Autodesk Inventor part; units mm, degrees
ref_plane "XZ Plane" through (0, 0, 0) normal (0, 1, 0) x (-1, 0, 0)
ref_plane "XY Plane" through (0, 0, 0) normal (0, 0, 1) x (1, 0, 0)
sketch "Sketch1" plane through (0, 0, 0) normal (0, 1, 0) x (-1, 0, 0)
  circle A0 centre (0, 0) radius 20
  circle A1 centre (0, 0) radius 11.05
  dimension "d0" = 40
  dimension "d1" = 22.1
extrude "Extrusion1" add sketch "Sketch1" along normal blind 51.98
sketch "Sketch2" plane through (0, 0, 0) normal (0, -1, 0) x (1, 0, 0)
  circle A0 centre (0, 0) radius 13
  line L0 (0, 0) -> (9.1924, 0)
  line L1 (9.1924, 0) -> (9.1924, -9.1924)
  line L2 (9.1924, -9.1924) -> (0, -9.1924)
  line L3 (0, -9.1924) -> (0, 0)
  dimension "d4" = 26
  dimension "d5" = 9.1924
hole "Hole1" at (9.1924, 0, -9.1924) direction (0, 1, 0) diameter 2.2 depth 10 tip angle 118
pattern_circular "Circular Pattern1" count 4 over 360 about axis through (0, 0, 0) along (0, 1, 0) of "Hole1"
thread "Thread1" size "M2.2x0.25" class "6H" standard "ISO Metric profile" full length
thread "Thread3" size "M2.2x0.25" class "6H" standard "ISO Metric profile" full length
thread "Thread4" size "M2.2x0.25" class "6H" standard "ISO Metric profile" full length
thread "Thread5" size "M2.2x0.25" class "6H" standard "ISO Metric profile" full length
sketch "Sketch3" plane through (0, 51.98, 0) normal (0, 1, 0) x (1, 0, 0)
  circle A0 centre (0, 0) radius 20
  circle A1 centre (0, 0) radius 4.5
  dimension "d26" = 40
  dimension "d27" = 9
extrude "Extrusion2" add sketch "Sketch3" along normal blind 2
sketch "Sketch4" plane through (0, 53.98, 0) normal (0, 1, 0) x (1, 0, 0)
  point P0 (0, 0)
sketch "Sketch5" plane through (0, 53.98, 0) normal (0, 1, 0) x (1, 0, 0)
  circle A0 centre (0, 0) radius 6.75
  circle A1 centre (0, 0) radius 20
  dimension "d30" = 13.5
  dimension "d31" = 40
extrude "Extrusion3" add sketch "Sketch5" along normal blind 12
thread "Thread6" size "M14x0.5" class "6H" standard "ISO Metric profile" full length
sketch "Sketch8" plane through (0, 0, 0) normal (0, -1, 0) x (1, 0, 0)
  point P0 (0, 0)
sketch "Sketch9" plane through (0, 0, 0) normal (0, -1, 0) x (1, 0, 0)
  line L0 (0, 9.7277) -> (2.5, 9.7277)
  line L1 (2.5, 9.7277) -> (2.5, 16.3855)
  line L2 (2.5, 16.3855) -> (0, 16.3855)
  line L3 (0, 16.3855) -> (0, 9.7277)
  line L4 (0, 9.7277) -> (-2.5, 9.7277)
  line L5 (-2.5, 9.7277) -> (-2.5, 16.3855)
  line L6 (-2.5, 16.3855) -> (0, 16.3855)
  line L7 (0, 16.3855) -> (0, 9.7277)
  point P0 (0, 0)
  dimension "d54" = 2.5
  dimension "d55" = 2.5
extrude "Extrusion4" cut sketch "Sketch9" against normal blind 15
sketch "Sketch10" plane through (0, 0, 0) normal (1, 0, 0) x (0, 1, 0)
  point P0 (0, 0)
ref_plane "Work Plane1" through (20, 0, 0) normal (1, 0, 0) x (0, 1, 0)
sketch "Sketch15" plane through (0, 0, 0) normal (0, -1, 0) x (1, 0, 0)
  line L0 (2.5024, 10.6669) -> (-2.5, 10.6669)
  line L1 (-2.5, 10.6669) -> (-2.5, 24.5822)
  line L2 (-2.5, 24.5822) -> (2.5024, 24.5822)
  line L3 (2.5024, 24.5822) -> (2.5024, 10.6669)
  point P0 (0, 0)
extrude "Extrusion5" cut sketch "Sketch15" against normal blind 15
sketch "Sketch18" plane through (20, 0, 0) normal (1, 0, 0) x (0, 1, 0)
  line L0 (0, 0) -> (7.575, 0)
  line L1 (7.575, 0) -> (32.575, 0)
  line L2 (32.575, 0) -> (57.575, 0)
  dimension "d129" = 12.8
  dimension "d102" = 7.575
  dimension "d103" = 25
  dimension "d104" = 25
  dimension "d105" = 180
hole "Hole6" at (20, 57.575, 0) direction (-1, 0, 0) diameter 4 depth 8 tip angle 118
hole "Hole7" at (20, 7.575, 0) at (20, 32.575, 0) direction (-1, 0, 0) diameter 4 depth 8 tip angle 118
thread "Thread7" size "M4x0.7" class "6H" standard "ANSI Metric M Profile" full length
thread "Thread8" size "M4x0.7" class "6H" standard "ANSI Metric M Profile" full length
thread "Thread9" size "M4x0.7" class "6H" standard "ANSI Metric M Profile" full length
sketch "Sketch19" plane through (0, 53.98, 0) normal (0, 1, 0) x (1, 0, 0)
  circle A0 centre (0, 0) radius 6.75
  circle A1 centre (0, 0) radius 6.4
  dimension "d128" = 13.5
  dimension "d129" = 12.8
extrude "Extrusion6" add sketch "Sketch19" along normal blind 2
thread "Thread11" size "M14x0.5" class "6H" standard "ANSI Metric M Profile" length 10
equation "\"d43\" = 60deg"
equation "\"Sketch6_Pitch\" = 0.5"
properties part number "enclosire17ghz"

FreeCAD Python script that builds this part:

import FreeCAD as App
import Part
import Sketcher

V = App.Vector


def add_polygon(sketch, points):
    """Adds a closed chain of lines whose ends are joined by coincident constraints."""
    first, n = sketch.GeometryCount, len(points)
    for a, b in zip(points, points[1:] + points[:1]):
        sketch.addGeometry(Part.LineSegment(App.Vector(*a, 0), App.Vector(*b, 0)), False)
    for i in range(n):
        sketch.addConstraint(Sketcher.Constraint("Coincident", first + i, 2, first + (i + 1) % n, 1))

doc = App.newDocument("Part")
body = doc.addObject("PartDesign::Body", "Body")

sketch1 = body.newObject("Sketcher::SketchObject", "Sketch")
sketch1.AttachmentSupport = (doc.getObject("XZ_Plane"), [""])
sketch1.MapMode = "FlatFace"
sketch1.addGeometry([
    Part.Circle(V(0, 0, 0), V(0, 0, 1), 20),
    Part.Circle(V(0, 0, 0), V(0, 0, 1), 11),
], False)
sketch1.addConstraint([
    Sketcher.Constraint("Coincident", 0, 3, -1, 1),
    Sketcher.Constraint("Coincident", 1, 3, -1, 1),
    Sketcher.Constraint("Diameter", 0, 40.0),
    Sketcher.Constraint("Diameter", 1, 22.1),
])
pad1 = body.newObject("PartDesign::Pad", "Pad")
pad1.Profile = sketch1
pad1.Length = 51.98
pad1.Reversed = True

sketch2 = body.newObject("Sketcher::SketchObject", "Sketch001")
sketch2.AttachmentSupport = (doc.getObject("XZ_Plane"), [""])
sketch2.MapMode = "FlatFace"
sketch2.addGeometry(Part.Circle(V(9.2, -9.2, 0), V(0, 0, 1), 1.1), False)
sketch2.addConstraint([
    Sketcher.Constraint("Diameter", 0, 2.2),
    Sketcher.Constraint("DistanceX", -1, 1, 0, 3, 9.1924),
    Sketcher.Constraint("DistanceY", 0, 3, -1, 1, 9.1924),
])
doc.recompute()
hole = body.newObject("PartDesign::Hole", "Hole")
hole.Profile = sketch2
hole.ThreadType = "None"
hole.Diameter = 2.2
hole.DepthType = "Dimension"
hole.Depth = 10
hole.DrillPoint = "Angled"
hole.DrillPointAngle = 118
doc.recompute()

polarpattern = body.newObject("PartDesign::PolarPattern", "PolarPattern")
polarpattern.Originals = [hole]
polarpattern.Axis = (doc.getObject("Y_Axis"), [""])
polarpattern.Angle = 360
polarpattern.Occurrences = 4
body.Tip = polarpattern

sketch3 = body.newObject("Sketcher::SketchObject", "Sketch002")
sketch3.AttachmentSupport = (doc.getObject("XZ_Plane"), [""])
sketch3.MapMode = "FlatFace"
sketch3.AttachmentOffset = App.Placement(V(0, 0, -51.98), App.Rotation())
sketch3.addGeometry([
    Part.Circle(V(0, 0, 0), V(0, 0, 1), 20),
    Part.Circle(V(0, 0, 0), V(0, 0, 1), 4.5),
], False)
sketch3.addConstraint([
    Sketcher.Constraint("Coincident", 0, 3, -1, 1),
    Sketcher.Constraint("Coincident", 1, 3, -1, 1),
    Sketcher.Constraint("Diameter", 0, 40.0),
    Sketcher.Constraint("Diameter", 1, 9.0),
])
pad2 = body.newObject("PartDesign::Pad", "Pad001")
pad2.Profile = sketch3
pad2.Length = 2
pad2.Reversed = True

sketch4 = body.newObject("Sketcher::SketchObject", "Sketch003")
sketch4.AttachmentSupport = (doc.getObject("XZ_Plane"), [""])
sketch4.MapMode = "FlatFace"
sketch4.AttachmentOffset = App.Placement(V(0, 0, -53.98), App.Rotation())
sketch4.addGeometry([
    Part.Circle(V(0, 0, 0), V(0, 0, 1), 20),
    Part.Circle(V(0, 0, 0), V(0, 0, 1), 7),
], False)
sketch4.addConstraint([
    Sketcher.Constraint("Coincident", 0, 3, -1, 1),
    Sketcher.Constraint("Coincident", 1, 3, -1, 1),
    Sketcher.Constraint("Diameter", 0, 40.0),
    Sketcher.Constraint("Diameter", 1, 13.5),
])
pad3 = body.newObject("PartDesign::Pad", "Pad002")
pad3.Profile = sketch4
pad3.Length = 12
pad3.Reversed = True

sketch5 = body.newObject("Sketcher::SketchObject", "Sketch004")
sketch5.AttachmentSupport = (doc.getObject("XZ_Plane"), [""])
sketch5.MapMode = "FlatFace"
add_polygon(sketch5, [(2, 16), (-2, 16), (-2, 10), (2, 10)])
sketch5.addConstraint([
    Sketcher.Constraint("Horizontal", 0),
    Sketcher.Constraint("Vertical", 1),
    Sketcher.Constraint("Horizontal", 2),
    Sketcher.Constraint("Vertical", 3),
    Sketcher.Constraint("DistanceX", 0, 2, -1, 1, 2.5),
    Sketcher.Constraint("DistanceX", -1, 1, 2, 2, 2.5),
    Sketcher.Constraint("DistanceY", 1, 2, 1, 1, 6.6578),
    Sketcher.Constraint("DistanceY", -1, 1, 0, 2, 16.3855),
])
pocket1 = body.newObject("PartDesign::Pocket", "Pocket")
pocket1.Profile = sketch5
pocket1.Length = 15

sketch6 = body.newObject("Sketcher::SketchObject", "Sketch005")
sketch6.AttachmentSupport = (doc.getObject("XZ_Plane"), [""])
sketch6.MapMode = "FlatFace"
add_polygon(sketch6, [(-2, 11), (3, 11), (3, 25), (-2, 25)])
sketch6.addConstraint([
    Sketcher.Constraint("Horizontal", 0),
    Sketcher.Constraint("Vertical", 1),
    Sketcher.Constraint("Horizontal", 2),
    Sketcher.Constraint("Vertical", 3),
    Sketcher.Constraint("DistanceX", 2, 2, -1, 1, 2.5),
    Sketcher.Constraint("DistanceX", 0, 1, 0, 2, 5.0024),
    Sketcher.Constraint("DistanceY", 1, 1, 1, 2, 13.9153),
    Sketcher.Constraint("DistanceY", -1, 1, 0, 2, 10.667),
])
pocket2 = body.newObject("PartDesign::Pocket", "Pocket001")
pocket2.Profile = sketch6
pocket2.Length = 15

sketch7 = body.newObject("Sketcher::SketchObject", "Sketch006")
sketch7.AttachmentSupport = (doc.getObject("YZ_Plane"), [""])
sketch7.MapMode = "FlatFace"
sketch7.AttachmentOffset = App.Placement(V(0, 0, 20), App.Rotation())
sketch7.addGeometry(Part.Circle(V(57.6, 0, 0), V(0, 0, 1), 2), False)
sketch7.addConstraint([
    Sketcher.Constraint("PointOnObject", 0, 3, -1),
    Sketcher.Constraint("Diameter", 0, 4.0),
    Sketcher.Constraint("DistanceX", -1, 1, 0, 3, 57.575),
])
doc.recompute()
hole2 = body.newObject("PartDesign::Hole", "Hole001")
hole2.Profile = sketch7
hole2.ThreadType = "None"
hole2.Diameter = 4
hole2.DepthType = "Dimension"
hole2.Depth = 8
hole2.DrillPoint = "Angled"
hole2.DrillPointAngle = 118

sketch8 = body.newObject("Sketcher::SketchObject", "Sketch007")
sketch8.AttachmentSupport = (doc.getObject("YZ_Plane"), [""])
sketch8.MapMode = "FlatFace"
sketch8.AttachmentOffset = App.Placement(V(0, 0, 20), App.Rotation())
sketch8.addGeometry([
    Part.Circle(V(7.6, 0, 0), V(0, 0, 1), 2),
    Part.Circle(V(32.6, 0, 0), V(0, 0, 1), 2),
], False)
sketch8.addConstraint([
    Sketcher.Constraint("Equal", 0, 1),
    Sketcher.Constraint("PointOnObject", 0, 3, -1),
    Sketcher.Constraint("PointOnObject", 1, 3, -1),
    Sketcher.Constraint("Diameter", 0, 4.0),
    Sketcher.Constraint("DistanceX", 0, 3, 1, 3, 25.0),
    Sketcher.Constraint("DistanceX", -1, 1, 0, 3, 7.575),
])
doc.recompute()
hole3 = body.newObject("PartDesign::Hole", "Hole002")
hole3.Profile = sketch8
hole3.ThreadType = "None"
hole3.Diameter = 4
hole3.DepthType = "Dimension"
hole3.Depth = 8
hole3.DrillPoint = "Angled"
hole3.DrillPointAngle = 118

sketch9 = body.newObject("Sketcher::SketchObject", "Sketch008")
sketch9.AttachmentSupport = (doc.getObject("XZ_Plane"), [""])
sketch9.MapMode = "FlatFace"
sketch9.AttachmentOffset = App.Placement(V(0, 0, -53.98), App.Rotation())
sketch9.addGeometry([
    Part.Circle(V(0, 0, 0), V(0, 0, 1), 7),
    Part.Circle(V(0, 0, 0), V(0, 0, 1), 6),
], False)
sketch9.addConstraint([
    Sketcher.Constraint("Coincident", 0, 3, -1, 1),
    Sketcher.Constraint("Coincident", 1, 3, -1, 1),
    Sketcher.Constraint("Diameter", 0, 13.5),
    Sketcher.Constraint("Diameter", 1, 12.8),
])
pad4 = body.newObject("PartDesign::Pad", "Pad003")
pad4.Profile = sketch9
pad4.Length = 2
pad4.Reversed = True

doc.recompute()
